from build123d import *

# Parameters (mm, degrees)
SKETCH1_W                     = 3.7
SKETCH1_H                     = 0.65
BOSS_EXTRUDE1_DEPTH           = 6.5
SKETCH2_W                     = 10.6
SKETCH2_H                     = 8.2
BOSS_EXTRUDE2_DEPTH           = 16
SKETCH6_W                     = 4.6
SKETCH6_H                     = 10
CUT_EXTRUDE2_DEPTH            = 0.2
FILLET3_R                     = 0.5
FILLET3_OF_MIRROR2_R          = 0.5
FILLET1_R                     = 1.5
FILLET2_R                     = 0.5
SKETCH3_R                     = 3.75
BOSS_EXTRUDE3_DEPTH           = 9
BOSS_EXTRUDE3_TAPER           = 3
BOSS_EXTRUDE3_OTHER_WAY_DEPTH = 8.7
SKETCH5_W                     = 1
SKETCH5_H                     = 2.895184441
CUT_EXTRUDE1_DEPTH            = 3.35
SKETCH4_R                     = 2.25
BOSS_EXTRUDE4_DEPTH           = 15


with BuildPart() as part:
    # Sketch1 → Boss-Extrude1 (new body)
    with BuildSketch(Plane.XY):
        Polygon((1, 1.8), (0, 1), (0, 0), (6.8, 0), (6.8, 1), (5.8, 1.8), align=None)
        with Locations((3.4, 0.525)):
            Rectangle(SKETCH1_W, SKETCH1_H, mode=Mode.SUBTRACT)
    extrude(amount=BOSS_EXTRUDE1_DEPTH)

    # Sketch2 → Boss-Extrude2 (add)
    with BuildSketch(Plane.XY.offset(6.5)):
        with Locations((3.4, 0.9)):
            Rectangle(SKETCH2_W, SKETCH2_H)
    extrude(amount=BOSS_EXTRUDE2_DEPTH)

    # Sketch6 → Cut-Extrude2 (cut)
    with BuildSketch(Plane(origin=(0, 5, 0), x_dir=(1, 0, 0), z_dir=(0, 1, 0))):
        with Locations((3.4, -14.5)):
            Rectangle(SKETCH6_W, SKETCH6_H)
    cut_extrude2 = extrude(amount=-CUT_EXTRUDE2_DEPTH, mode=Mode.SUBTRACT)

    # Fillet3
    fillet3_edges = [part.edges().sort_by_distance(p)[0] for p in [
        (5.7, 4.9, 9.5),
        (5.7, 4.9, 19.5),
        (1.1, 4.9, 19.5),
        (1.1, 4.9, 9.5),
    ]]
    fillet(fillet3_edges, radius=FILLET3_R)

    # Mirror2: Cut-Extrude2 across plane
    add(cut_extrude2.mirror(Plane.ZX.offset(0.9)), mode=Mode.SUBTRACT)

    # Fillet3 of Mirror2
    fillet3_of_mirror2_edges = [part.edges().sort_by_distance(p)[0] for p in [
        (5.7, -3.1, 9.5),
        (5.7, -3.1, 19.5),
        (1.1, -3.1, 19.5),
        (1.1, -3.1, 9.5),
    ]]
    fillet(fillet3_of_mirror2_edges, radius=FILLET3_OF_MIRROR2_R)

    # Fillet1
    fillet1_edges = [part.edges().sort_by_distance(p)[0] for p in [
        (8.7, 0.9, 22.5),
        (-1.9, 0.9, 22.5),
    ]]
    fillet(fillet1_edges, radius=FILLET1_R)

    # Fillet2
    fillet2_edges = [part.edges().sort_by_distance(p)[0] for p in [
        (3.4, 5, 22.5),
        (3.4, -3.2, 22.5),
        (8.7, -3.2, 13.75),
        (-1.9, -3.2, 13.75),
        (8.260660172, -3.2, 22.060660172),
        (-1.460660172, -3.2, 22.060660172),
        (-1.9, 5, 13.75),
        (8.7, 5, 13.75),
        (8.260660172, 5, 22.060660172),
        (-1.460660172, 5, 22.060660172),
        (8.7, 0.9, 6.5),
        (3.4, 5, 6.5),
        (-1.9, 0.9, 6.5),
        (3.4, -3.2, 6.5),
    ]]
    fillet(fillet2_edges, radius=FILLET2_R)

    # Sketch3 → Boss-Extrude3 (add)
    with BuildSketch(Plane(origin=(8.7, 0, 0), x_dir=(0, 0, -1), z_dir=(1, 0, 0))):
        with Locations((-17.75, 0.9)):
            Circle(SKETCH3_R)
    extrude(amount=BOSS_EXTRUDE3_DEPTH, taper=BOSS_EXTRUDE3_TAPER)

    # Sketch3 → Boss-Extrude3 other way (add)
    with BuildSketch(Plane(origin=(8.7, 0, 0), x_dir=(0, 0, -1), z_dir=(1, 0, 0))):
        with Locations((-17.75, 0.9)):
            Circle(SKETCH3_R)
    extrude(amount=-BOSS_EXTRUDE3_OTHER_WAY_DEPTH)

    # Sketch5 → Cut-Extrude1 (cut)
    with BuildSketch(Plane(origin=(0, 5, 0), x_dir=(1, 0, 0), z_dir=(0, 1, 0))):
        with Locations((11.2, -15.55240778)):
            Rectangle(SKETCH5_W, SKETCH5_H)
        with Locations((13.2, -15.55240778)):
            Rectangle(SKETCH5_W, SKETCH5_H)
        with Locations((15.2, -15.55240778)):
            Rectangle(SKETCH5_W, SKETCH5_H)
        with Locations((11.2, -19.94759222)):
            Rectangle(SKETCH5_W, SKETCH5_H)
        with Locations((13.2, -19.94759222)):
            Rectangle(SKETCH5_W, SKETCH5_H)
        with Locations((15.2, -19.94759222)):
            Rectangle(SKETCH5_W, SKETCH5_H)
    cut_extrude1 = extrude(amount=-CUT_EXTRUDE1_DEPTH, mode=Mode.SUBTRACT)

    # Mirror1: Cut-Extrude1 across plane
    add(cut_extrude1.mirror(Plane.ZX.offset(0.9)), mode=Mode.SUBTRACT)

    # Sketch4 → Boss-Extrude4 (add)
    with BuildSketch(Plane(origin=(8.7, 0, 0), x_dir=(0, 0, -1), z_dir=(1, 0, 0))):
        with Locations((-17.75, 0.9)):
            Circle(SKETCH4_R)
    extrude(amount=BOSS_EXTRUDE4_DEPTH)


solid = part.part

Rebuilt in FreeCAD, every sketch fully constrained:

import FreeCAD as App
import Part
import Sketcher
from FreeCAD import Vector


def edges_at(feature, points):
    """Names of the edges that pass closest to the given points."""
    edges = feature.Shape.Edges
    near = lambda p: min(range(len(edges)), key=lambda i: edges[i].distToShape(Part.Vertex(*p))[0])
    return sorted({f"Edge{near(p) + 1}" for p in points})


def add_polygon(sketch, points):
    """Adds a closed chain of lines whose ends are joined by coincident constraints."""
    first, n = sketch.GeometryCount, len(points)
    for a, b in zip(points, points[1:] + points[:1]):
        sketch.addGeometry(Part.LineSegment(App.Vector(*a, 0), App.Vector(*b, 0)), False)
    for i in range(n):
        sketch.addConstraint(Sketcher.Constraint("Coincident", first + i, 2, first + (i + 1) % n, 1))

doc = App.newDocument("Part")
body = doc.addObject("PartDesign::Body", "Body")

sketch1 = body.newObject("Sketcher::SketchObject", "Sketch")
sketch1.AttachmentSupport = (doc.getObject("XY_Plane"), [""])
sketch1.MapMode = "FlatFace"
add_polygon(sketch1, [(1, 1.8), (0, 1), (0, 0), (6.8, 0), (6.8, 1), (5.8, 1.8)])
add_polygon(sketch1, [(5.25, 0.2), (1.55, 0.2), (1.55, 0.85), (5.25, 0.85)])
sketch1.addConstraint(Sketcher.Constraint("Vertical", 1))
sketch1.addConstraint(Sketcher.Constraint("Horizontal", 2))
sketch1.addConstraint(Sketcher.Constraint("Vertical", 3))
sketch1.addConstraint(Sketcher.Constraint("Horizontal", 5))
sketch1.addConstraint(Sketcher.Constraint("Horizontal", 6))
sketch1.addConstraint(Sketcher.Constraint("Vertical", 7))
sketch1.addConstraint(Sketcher.Constraint("Horizontal", 8))
sketch1.addConstraint(Sketcher.Constraint("Vertical", 9))
sketch1.addConstraint(Sketcher.Constraint("Coincident", 1, 2, -1, 1))
sketch1.addConstraint(Sketcher.Constraint("Horizontal", 0, 2, 3, 2))
sketch1.addConstraint(Sketcher.Constraint("Equal", 0, 4))
sketch1.addConstraint(Sketcher.Constraint("DistanceY", 1, 2, 1, 1, 1.0))
sketch1.addConstraint(Sketcher.Constraint("DistanceX", 2, 1, 2, 2, 6.8))
sketch1.addConstraint(Sketcher.Constraint("DistanceX", 5, 2, 5, 1, 4.8))
sketch1.addConstraint(Sketcher.Constraint("DistanceX", 6, 2, 6, 1, 3.7))
sketch1.addConstraint(Sketcher.Constraint("DistanceY", 7, 1, 7, 2, 0.65))
sketch1.addConstraint(Sketcher.Constraint("DistanceY", -1, 1, 4, 2, 1.8))
sketch1.addConstraint(Sketcher.Constraint("DistanceY", -1, 1, 6, 2, 0.2))
sketch1.addConstraint(Sketcher.Constraint("DistanceX", -1, 1, 6, 2, 1.55))
pad1 = body.newObject("PartDesign::Pad", "Pad")
pad1.Profile = sketch1
pad1.Length = 6.5

sketch2 = body.newObject("Sketcher::SketchObject", "Sketch001")
sketch2.AttachmentSupport = (doc.getObject("XY_Plane"), [""])
sketch2.MapMode = "FlatFace"
sketch2.AttachmentOffset = App.Placement(Vector(0, 0, 6.5), App.Rotation())
add_polygon(sketch2, [(-1.9, 5), (-1.9, -3.2), (8.7, -3.2), (8.7, 5)])
sketch2.addConstraint(Sketcher.Constraint("Vertical", 0))
sketch2.addConstraint(Sketcher.Constraint("Horizontal", 1))
sketch2.addConstraint(Sketcher.Constraint("Vertical", 2))
sketch2.addConstraint(Sketcher.Constraint("Horizontal", 3))
sketch2.addConstraint(Sketcher.Constraint("DistanceX", 1, 1, 1, 2, 10.6))
sketch2.addConstraint(Sketcher.Constraint("DistanceY", 0, 2, 0, 1, 8.2))
sketch2.addConstraint(Sketcher.Constraint("DistanceY", -1, 1, 2, 2, 5.0))
sketch2.addConstraint(Sketcher.Constraint("DistanceX", 0, 2, -1, 1, 1.9))
pad2 = body.newObject("PartDesign::Pad", "Pad001")
pad2.Profile = sketch2
pad2.Length = 16

sketch3 = body.newObject("Sketcher::SketchObject", "Sketch002")
sketch3.AttachmentSupport = (doc.getObject("XZ_Plane"), [""])
sketch3.MapMode = "FlatFace"
sketch3.AttachmentOffset = App.Placement(Vector(0, 0, -5), App.Rotation())
add_polygon(sketch3, [(1.1, 9.5), (1.1, 19.5), (5.7, 19.5), (5.7, 9.5)])
sketch3.addConstraint(Sketcher.Constraint("Vertical", 0))
sketch3.addConstraint(Sketcher.Constraint("Horizontal", 1))
sketch3.addConstraint(Sketcher.Constraint("Vertical", 2))
sketch3.addConstraint(Sketcher.Constraint("Horizontal", 3))
sketch3.addConstraint(Sketcher.Constraint("DistanceY", 0, 1, 0, 2, 10.0))
sketch3.addConstraint(Sketcher.Constraint("DistanceX", 1, 1, 1, 2, 4.6))
sketch3.addConstraint(Sketcher.Constraint("DistanceX", -1, 1, 0, 2, 1.1))
sketch3.addConstraint(Sketcher.Constraint("DistanceY", -1, 1, 0, 2, 19.5))
pocket1 = body.newObject("PartDesign::Pocket", "Pocket")
pocket1.Profile = sketch3
pocket1.Length = 0.2
pocket1.Reversed = True
doc.recompute()

fillet = body.newObject("PartDesign::Fillet", "Fillet")
fillet.Base = (pocket1, edges_at(pocket1, [
    (5.7, 4.9, 9.5),
    (5.7, 4.9, 19.5),
    (1.1, 4.9, 19.5),
    (1.1, 4.9, 9.5),
]))
fillet.Radius = 0.5
doc.recompute()

datumplane = body.newObject("PartDesign::Plane", "DatumPlane")
datumplane.AttachmentSupport = (doc.getObject("XZ_Plane"), [""])
datumplane.MapMode = "FlatFace"
datumplane.AttachmentOffset = App.Placement(Vector(0, 0, -0.9), App.Rotation())
mirrored = body.newObject("PartDesign::Mirrored", "Mirrored")
mirrored.Originals = [pocket1]
mirrored.MirrorPlane = (datumplane, [""])
body.Tip = mirrored
doc.recompute()

fillet2 = body.newObject("PartDesign::Fillet", "Fillet001")
fillet2.Base = (mirrored, edges_at(mirrored, [
    (5.7, -3.1, 9.5),
    (5.7, -3.1, 19.5),
    (1.1, -3.1, 19.5),
    (1.1, -3.1, 9.5),
]))
fillet2.Radius = 0.5
doc.recompute()

fillet3 = body.newObject("PartDesign::Fillet", "Fillet002")
fillet3.Base = (fillet2, edges_at(fillet2, [(8.7, 0.9, 22.5), (-1.9, 0.9, 22.5)]))
fillet3.Radius = 1.5
doc.recompute()

fillet4 = body.newObject("PartDesign::Fillet", "Fillet003")
fillet4.Base = (fillet3, edges_at(fillet3, [
    (3.4, 5, 22.5),
    (3.4, -3.2, 22.5),
    (8.7, -3.2, 13.75),
    (-1.9, -3.2, 13.75),
    (8.261, -3.2, 22.061),
    (-1.461, -3.2, 22.061),
    (-1.9, 5, 13.75),
    (8.7, 5, 13.75),
    (8.261, 5, 22.061),
    (-1.461, 5, 22.061),
    (8.7, 0.9, 6.5),
    (3.4, 5, 6.5),
    (-1.9, 0.9, 6.5),
    (3.4, -3.2, 6.5),
]))
fillet4.Radius = 0.5

sketch4 = body.newObject("Sketcher::SketchObject", "Sketch003")
sketch4.AttachmentSupport = (doc.getObject("YZ_Plane"), [""])
sketch4.MapMode = "FlatFace"
sketch4.AttachmentOffset = App.Placement(Vector(0, 0, 8.7), App.Rotation())
sketch4.addGeometry(Part.Circle(Vector(0.9, 17.75, 0), Vector(0, 0, 1), 3.75), False)
sketch4.addConstraint(Sketcher.Constraint("Diameter", 0, 7.5))
sketch4.addConstraint(Sketcher.Constraint("DistanceX", -1, 1, 0, 3, 0.9))
sketch4.addConstraint(Sketcher.Constraint("DistanceY", -1, 1, 0, 3, 17.75))
pad3 = body.newObject("PartDesign::Pad", "Pad002")
pad3.Profile = sketch4
pad3.Length = 9
pad3.TaperAngle = -3

sketch5 = body.newObject("Sketcher::SketchObject", "Sketch004")
sketch5.AttachmentSupport = (doc.getObject("YZ_Plane"), [""])
sketch5.MapMode = "FlatFace"
sketch5.AttachmentOffset = App.Placement(Vector(0, 0, 8.7), App.Rotation())
sketch5.addGeometry(Part.Circle(Vector(0.9, 17.75, 0), Vector(0, 0, 1), 3.75), False)
sketch5.addConstraint(Sketcher.Constraint("Diameter", 0, 7.5))
sketch5.addConstraint(Sketcher.Constraint("DistanceX", -1, 1, 0, 3, 0.9))
sketch5.addConstraint(Sketcher.Constraint("DistanceY", -1, 1, 0, 3, 17.75))
pad4 = body.newObject("PartDesign::Pad", "Pad003")
pad4.Profile = sketch5
pad4.Length = 8.7
pad4.Reversed = True

sketch6 = body.newObject("Sketcher::SketchObject", "Sketch005")
sketch6.AttachmentSupport = (doc.getObject("XZ_Plane"), [""])
sketch6.MapMode = "FlatFace"
sketch6.AttachmentOffset = App.Placement(Vector(0, 0, -5), App.Rotation())
add_polygon(sketch6, [(10.7, 14.104816), (10.7, 17), (11.7, 17), (11.7, 14.104816)])
add_polygon(sketch6, [(12.7, 14.104816), (12.7, 17), (13.7, 17), (13.7, 14.104816)])
add_polygon(sketch6, [(14.7, 14.104816), (14.7, 17), (15.7, 17), (15.7, 14.104816)])
add_polygon(sketch6, [(10.7, 18.5), (10.7, 21.395184), (11.7, 21.395184), (11.7, 18.5)])
add_polygon(sketch6, [(12.7, 18.5), (12.7, 21.395184), (13.7, 21.395184), (13.7, 18.5)])
add_polygon(sketch6, [(14.7, 18.5), (14.7, 21.395184), (15.7, 21.395184), (15.7, 18.5)])
sketch6.addConstraint(Sketcher.Constraint("Vertical", 0))
sketch6.addConstraint(Sketcher.Constraint("Horizontal", 1))
sketch6.addConstraint(Sketcher.Constraint("Vertical", 2))
sketch6.addConstraint(Sketcher.Constraint("Horizontal", 3))
sketch6.addConstraint(Sketcher.Constraint("Vertical", 4))
sketch6.addConstraint(Sketcher.Constraint("Horizontal", 5))
sketch6.addConstraint(Sketcher.Constraint("Vertical", 6))
sketch6.addConstraint(Sketcher.Constraint("Horizontal", 7))
sketch6.addConstraint(Sketcher.Constraint("Vertical", 8))
sketch6.addConstraint(Sketcher.Constraint("Horizontal", 9))
sketch6.addConstraint(Sketcher.Constraint("Vertical", 10))
sketch6.addConstraint(Sketcher.Constraint("Horizontal", 11))
sketch6.addConstraint(Sketcher.Constraint("Vertical", 12))
sketch6.addConstraint(Sketcher.Constraint("Horizontal", 13))
sketch6.addConstraint(Sketcher.Constraint("Vertical", 14))
sketch6.addConstraint(Sketcher.Constraint("Horizontal", 15))
sketch6.addConstraint(Sketcher.Constraint("Vertical", 16))
sketch6.addConstraint(Sketcher.Constraint("Horizontal", 17))
sketch6.addConstraint(Sketcher.Constraint("Vertical", 18))
sketch6.addConstraint(Sketcher.Constraint("Horizontal", 19))
sketch6.addConstraint(Sketcher.Constraint("Vertical", 20))
sketch6.addConstraint(Sketcher.Constraint("Horizontal", 21))
sketch6.addConstraint(Sketcher.Constraint("Vertical", 22))
sketch6.addConstraint(Sketcher.Constraint("Horizontal", 23))
sketch6.addConstraint(Sketcher.Constraint("Horizontal", 1, 2, 4, 2))
sketch6.addConstraint(Sketcher.Constraint("Horizontal", 3, 2, 6, 2))
sketch6.addConstraint(Sketcher.Constraint("Horizontal", 5, 2, 8, 2))
sketch6.addConstraint(Sketcher.Constraint("Horizontal", 7, 2, 10, 2))
sketch6.addConstraint(Sketcher.Constraint("Horizontal", 13, 2, 16, 2))
sketch6.addConstraint(Sketcher.Constraint("Horizontal", 15, 2, 18, 2))
sketch6.addConstraint(Sketcher.Constraint("Horizontal", 17, 2, 20, 2))
sketch6.addConstraint(Sketcher.Constraint("Horizontal", 19, 2, 22, 2))
sketch6.addConstraint(Sketcher.Constraint("Vertical", 3, 2, 12, 2))
sketch6.addConstraint(Sketcher.Constraint("Vertical", 2, 2, 13, 2))
sketch6.addConstraint(Sketcher.Constraint("Vertical", 7, 2, 16, 2))
sketch6.addConstraint(Sketcher.Constraint("Vertical", 6, 2, 17, 2))
sketch6.addConstraint(Sketcher.Constraint("Vertical", 11, 2, 20, 2))
sketch6.addConstraint(Sketcher.Constraint("Vertical", 10, 2, 21, 2))
sketch6.addConstraint(Sketcher.Constraint("Equal", 3, 5))
sketch6.addConstraint(Sketcher.Constraint("Equal", 7, 9))
sketch6.addConstraint(Sketcher.Constraint("Equal", 10, 12))
sketch6.addConstraint(Sketcher.Constraint("DistanceX", 1, 1, 1, 2, 1.0))
sketch6.addConstraint(Sketcher.Constraint("DistanceY", -1, 1, 0, 2, 17.0))
sketch6.addConstraint(Sketcher.Constraint("DistanceX", 1, 2, 4, 2, 1.0))
sketch6.addConstraint(Sketcher.Constraint("DistanceX", 5, 2, 8, 2, 1.0))
sketch6.addConstraint(Sketcher.Constraint("DistanceX", -1, 1, 0, 2, 10.7))
sketch6.addConstraint(Sketcher.Constraint("DistanceY", -1, 1, 14, 2, 18.5))
sketch6.addConstraint(Sketcher.Constraint("DistanceY", 0, 1, 0, 2, 2.895184))
pocket2 = body.newObject("PartDesign::Pocket", "Pocket001")
pocket2.Profile = sketch6
pocket2.Length = 3.35
pocket2.Reversed = True
doc.recompute()

datumplane2 = body.newObject("PartDesign::Plane", "DatumPlane001")
datumplane2.AttachmentSupport = (doc.getObject("XZ_Plane"), [""])
datumplane2.MapMode = "FlatFace"
datumplane2.AttachmentOffset = App.Placement(Vector(0, 0, -0.9), App.Rotation())
mirrored2 = body.newObject("PartDesign::Mirrored", "Mirrored001")
mirrored2.Originals = [pocket2]
mirrored2.MirrorPlane = (datumplane2, [""])
body.Tip = mirrored2

sketch7 = body.newObject("Sketcher::SketchObject", "Sketch006")
sketch7.AttachmentSupport = (doc.getObject("YZ_Plane"), [""])
sketch7.MapMode = "FlatFace"
sketch7.AttachmentOffset = App.Placement(Vector(0, 0, 8.7), App.Rotation())
sketch7.addGeometry(Part.Circle(Vector(0.9, 17.75, 0), Vector(0, 0, 1), 2.25), False)
sketch7.addConstraint(Sketcher.Constraint("Diameter", 0, 4.5))
sketch7.addConstraint(Sketcher.Constraint("DistanceX", -1, 1, 0, 3, 0.9))
sketch7.addConstraint(Sketcher.Constraint("DistanceY", -1, 1, 0, 3, 17.75))
pad5 = body.newObject("PartDesign::Pad", "Pad004")
pad5.Profile = sketch7
pad5.Length = 15

doc.recompute()
